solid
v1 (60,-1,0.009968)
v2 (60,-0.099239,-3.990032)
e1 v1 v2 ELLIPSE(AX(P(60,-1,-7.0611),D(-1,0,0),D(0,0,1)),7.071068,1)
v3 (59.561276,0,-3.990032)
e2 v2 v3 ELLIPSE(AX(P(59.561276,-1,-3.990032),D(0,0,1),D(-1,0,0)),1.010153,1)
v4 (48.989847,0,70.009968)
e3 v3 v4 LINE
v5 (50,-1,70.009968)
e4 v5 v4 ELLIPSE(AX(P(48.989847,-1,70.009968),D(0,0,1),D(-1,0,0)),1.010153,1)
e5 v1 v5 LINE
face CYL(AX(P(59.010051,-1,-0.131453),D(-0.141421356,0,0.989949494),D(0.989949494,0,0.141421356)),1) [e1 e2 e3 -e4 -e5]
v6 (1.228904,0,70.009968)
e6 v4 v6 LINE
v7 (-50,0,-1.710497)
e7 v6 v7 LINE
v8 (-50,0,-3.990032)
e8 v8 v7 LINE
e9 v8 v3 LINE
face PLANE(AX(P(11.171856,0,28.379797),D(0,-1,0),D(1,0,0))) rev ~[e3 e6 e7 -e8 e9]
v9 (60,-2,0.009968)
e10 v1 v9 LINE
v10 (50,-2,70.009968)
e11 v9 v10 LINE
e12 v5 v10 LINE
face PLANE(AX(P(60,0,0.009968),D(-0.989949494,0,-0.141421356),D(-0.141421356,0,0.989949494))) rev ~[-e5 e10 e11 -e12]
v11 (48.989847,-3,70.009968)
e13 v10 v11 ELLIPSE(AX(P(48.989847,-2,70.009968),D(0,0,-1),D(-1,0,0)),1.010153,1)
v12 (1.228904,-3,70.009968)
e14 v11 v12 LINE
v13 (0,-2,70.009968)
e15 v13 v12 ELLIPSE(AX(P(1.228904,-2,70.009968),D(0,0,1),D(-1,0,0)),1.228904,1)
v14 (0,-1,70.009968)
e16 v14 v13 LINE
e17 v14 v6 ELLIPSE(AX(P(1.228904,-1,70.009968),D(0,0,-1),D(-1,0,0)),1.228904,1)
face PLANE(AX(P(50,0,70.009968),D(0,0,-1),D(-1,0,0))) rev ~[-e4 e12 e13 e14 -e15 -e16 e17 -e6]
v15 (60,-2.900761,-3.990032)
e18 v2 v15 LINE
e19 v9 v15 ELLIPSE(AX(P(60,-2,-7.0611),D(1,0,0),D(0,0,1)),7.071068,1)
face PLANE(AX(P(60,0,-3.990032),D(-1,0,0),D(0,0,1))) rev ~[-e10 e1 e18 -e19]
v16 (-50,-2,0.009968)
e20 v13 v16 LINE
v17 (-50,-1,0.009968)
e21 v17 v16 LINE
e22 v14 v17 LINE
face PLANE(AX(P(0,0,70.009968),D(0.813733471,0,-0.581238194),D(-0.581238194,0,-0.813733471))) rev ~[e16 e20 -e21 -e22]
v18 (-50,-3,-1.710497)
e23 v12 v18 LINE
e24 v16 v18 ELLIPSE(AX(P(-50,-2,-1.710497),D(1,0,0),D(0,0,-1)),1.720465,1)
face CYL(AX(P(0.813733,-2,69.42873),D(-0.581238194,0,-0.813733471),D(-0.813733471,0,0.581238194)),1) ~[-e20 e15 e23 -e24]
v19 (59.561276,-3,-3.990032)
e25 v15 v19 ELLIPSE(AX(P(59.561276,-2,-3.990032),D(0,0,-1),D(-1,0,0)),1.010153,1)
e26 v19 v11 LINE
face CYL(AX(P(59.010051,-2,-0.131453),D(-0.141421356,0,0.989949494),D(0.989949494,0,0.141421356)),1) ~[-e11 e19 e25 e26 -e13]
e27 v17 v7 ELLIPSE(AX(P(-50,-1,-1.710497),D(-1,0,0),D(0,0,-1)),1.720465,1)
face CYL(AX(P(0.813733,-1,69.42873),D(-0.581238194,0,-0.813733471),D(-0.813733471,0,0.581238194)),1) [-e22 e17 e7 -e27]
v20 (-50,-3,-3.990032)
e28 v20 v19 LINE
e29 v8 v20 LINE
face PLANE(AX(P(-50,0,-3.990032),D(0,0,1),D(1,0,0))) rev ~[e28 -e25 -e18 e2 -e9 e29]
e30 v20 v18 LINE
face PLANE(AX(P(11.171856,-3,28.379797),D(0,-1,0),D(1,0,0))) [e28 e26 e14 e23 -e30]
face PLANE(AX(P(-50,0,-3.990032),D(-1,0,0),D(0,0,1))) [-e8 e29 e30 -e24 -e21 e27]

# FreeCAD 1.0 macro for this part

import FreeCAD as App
import Part
import Sketcher

V = App.Vector
Q = App.Units.Quantity


def edges_at(feature, points):
    """Names of the edges that pass closest to the given points."""
    edges = feature.Shape.Edges
    near = lambda p: min(range(len(edges)), key=lambda i: edges[i].distToShape(Part.Vertex(*p))[0])
    return sorted({f"Edge{near(p) + 1}" for p in points})


def add_polygon(sketch, points):
    """Adds a closed chain of lines whose ends are joined by coincident constraints."""
    first, n = sketch.GeometryCount, len(points)
    for a, b in zip(points, points[1:] + points[:1]):
        sketch.addGeometry(Part.LineSegment(App.Vector(*a, 0), App.Vector(*b, 0)), False)
    for i in range(n):
        sketch.addConstraint(Sketcher.Constraint("Coincident", first + i, 2, first + (i + 1) % n, 1))

doc = App.newDocument("Part")
body = doc.addObject("PartDesign::Body", "Body")

sketch1 = body.newObject("Sketcher::SketchObject", "Sketch")
sketch1.AttachmentSupport = (doc.getObject("XZ_Plane"), [""])
sketch1.MapMode = "FlatFace"
add_polygon(sketch1, [(0, 70), (-50, 0), (-50, -4), (60, -4), (60, 0), (50, 70)])
sketch1.addConstraint(Sketcher.Constraint("Vertical", 1))
sketch1.addConstraint(Sketcher.Constraint("Horizontal", 2))
sketch1.addConstraint(Sketcher.Constraint("Vertical", 3))
sketch1.addConstraint(Sketcher.Constraint("Horizontal", 5))
sketch1.addConstraint(Sketcher.Constraint("PointOnObject", 5, 2, -2))
sketch1.addConstraint(Sketcher.Constraint("Horizontal", 0, 2, 3, 2))
sketch1.addConstraint(Sketcher.Constraint("DistanceX", 2, 1, 2, 2, Q("110 mm")))
sketch1.addConstraint(Sketcher.Constraint("DistanceX", 5, 2, 5, 1, Q("50 mm")))
sketch1.addConstraint(Sketcher.Constraint("DistanceY", 1, 2, 1, 1, Q("4 mm")))
sketch1.addConstraint(Sketcher.Constraint("DistanceX", 0, 2, -1, 1, Q("50 mm")))
sketch1.addConstraint(Sketcher.Constraint("DistanceY", 3, 2, 4, 2, Q("70 mm")))
sketch1.addConstraint(Sketcher.Constraint("DistanceY", 1, 2, -1, 1, Q("3.990032 mm")))
pad1 = body.newObject("PartDesign::Pad", "Pad")
pad1.Profile = sketch1
pad1.Length = 3
doc.recompute()

fillet = body.newObject("PartDesign::Fillet", "Fillet")
fillet.Base = (pad1, edges_at(pad1, [
    (-25, -3, 35.01),
    (-25, 0, 35.01),
    (55, -3, 35.01),
    (55, 0, 35.01),
]))
fillet.Radius = 1

doc.recompute()
